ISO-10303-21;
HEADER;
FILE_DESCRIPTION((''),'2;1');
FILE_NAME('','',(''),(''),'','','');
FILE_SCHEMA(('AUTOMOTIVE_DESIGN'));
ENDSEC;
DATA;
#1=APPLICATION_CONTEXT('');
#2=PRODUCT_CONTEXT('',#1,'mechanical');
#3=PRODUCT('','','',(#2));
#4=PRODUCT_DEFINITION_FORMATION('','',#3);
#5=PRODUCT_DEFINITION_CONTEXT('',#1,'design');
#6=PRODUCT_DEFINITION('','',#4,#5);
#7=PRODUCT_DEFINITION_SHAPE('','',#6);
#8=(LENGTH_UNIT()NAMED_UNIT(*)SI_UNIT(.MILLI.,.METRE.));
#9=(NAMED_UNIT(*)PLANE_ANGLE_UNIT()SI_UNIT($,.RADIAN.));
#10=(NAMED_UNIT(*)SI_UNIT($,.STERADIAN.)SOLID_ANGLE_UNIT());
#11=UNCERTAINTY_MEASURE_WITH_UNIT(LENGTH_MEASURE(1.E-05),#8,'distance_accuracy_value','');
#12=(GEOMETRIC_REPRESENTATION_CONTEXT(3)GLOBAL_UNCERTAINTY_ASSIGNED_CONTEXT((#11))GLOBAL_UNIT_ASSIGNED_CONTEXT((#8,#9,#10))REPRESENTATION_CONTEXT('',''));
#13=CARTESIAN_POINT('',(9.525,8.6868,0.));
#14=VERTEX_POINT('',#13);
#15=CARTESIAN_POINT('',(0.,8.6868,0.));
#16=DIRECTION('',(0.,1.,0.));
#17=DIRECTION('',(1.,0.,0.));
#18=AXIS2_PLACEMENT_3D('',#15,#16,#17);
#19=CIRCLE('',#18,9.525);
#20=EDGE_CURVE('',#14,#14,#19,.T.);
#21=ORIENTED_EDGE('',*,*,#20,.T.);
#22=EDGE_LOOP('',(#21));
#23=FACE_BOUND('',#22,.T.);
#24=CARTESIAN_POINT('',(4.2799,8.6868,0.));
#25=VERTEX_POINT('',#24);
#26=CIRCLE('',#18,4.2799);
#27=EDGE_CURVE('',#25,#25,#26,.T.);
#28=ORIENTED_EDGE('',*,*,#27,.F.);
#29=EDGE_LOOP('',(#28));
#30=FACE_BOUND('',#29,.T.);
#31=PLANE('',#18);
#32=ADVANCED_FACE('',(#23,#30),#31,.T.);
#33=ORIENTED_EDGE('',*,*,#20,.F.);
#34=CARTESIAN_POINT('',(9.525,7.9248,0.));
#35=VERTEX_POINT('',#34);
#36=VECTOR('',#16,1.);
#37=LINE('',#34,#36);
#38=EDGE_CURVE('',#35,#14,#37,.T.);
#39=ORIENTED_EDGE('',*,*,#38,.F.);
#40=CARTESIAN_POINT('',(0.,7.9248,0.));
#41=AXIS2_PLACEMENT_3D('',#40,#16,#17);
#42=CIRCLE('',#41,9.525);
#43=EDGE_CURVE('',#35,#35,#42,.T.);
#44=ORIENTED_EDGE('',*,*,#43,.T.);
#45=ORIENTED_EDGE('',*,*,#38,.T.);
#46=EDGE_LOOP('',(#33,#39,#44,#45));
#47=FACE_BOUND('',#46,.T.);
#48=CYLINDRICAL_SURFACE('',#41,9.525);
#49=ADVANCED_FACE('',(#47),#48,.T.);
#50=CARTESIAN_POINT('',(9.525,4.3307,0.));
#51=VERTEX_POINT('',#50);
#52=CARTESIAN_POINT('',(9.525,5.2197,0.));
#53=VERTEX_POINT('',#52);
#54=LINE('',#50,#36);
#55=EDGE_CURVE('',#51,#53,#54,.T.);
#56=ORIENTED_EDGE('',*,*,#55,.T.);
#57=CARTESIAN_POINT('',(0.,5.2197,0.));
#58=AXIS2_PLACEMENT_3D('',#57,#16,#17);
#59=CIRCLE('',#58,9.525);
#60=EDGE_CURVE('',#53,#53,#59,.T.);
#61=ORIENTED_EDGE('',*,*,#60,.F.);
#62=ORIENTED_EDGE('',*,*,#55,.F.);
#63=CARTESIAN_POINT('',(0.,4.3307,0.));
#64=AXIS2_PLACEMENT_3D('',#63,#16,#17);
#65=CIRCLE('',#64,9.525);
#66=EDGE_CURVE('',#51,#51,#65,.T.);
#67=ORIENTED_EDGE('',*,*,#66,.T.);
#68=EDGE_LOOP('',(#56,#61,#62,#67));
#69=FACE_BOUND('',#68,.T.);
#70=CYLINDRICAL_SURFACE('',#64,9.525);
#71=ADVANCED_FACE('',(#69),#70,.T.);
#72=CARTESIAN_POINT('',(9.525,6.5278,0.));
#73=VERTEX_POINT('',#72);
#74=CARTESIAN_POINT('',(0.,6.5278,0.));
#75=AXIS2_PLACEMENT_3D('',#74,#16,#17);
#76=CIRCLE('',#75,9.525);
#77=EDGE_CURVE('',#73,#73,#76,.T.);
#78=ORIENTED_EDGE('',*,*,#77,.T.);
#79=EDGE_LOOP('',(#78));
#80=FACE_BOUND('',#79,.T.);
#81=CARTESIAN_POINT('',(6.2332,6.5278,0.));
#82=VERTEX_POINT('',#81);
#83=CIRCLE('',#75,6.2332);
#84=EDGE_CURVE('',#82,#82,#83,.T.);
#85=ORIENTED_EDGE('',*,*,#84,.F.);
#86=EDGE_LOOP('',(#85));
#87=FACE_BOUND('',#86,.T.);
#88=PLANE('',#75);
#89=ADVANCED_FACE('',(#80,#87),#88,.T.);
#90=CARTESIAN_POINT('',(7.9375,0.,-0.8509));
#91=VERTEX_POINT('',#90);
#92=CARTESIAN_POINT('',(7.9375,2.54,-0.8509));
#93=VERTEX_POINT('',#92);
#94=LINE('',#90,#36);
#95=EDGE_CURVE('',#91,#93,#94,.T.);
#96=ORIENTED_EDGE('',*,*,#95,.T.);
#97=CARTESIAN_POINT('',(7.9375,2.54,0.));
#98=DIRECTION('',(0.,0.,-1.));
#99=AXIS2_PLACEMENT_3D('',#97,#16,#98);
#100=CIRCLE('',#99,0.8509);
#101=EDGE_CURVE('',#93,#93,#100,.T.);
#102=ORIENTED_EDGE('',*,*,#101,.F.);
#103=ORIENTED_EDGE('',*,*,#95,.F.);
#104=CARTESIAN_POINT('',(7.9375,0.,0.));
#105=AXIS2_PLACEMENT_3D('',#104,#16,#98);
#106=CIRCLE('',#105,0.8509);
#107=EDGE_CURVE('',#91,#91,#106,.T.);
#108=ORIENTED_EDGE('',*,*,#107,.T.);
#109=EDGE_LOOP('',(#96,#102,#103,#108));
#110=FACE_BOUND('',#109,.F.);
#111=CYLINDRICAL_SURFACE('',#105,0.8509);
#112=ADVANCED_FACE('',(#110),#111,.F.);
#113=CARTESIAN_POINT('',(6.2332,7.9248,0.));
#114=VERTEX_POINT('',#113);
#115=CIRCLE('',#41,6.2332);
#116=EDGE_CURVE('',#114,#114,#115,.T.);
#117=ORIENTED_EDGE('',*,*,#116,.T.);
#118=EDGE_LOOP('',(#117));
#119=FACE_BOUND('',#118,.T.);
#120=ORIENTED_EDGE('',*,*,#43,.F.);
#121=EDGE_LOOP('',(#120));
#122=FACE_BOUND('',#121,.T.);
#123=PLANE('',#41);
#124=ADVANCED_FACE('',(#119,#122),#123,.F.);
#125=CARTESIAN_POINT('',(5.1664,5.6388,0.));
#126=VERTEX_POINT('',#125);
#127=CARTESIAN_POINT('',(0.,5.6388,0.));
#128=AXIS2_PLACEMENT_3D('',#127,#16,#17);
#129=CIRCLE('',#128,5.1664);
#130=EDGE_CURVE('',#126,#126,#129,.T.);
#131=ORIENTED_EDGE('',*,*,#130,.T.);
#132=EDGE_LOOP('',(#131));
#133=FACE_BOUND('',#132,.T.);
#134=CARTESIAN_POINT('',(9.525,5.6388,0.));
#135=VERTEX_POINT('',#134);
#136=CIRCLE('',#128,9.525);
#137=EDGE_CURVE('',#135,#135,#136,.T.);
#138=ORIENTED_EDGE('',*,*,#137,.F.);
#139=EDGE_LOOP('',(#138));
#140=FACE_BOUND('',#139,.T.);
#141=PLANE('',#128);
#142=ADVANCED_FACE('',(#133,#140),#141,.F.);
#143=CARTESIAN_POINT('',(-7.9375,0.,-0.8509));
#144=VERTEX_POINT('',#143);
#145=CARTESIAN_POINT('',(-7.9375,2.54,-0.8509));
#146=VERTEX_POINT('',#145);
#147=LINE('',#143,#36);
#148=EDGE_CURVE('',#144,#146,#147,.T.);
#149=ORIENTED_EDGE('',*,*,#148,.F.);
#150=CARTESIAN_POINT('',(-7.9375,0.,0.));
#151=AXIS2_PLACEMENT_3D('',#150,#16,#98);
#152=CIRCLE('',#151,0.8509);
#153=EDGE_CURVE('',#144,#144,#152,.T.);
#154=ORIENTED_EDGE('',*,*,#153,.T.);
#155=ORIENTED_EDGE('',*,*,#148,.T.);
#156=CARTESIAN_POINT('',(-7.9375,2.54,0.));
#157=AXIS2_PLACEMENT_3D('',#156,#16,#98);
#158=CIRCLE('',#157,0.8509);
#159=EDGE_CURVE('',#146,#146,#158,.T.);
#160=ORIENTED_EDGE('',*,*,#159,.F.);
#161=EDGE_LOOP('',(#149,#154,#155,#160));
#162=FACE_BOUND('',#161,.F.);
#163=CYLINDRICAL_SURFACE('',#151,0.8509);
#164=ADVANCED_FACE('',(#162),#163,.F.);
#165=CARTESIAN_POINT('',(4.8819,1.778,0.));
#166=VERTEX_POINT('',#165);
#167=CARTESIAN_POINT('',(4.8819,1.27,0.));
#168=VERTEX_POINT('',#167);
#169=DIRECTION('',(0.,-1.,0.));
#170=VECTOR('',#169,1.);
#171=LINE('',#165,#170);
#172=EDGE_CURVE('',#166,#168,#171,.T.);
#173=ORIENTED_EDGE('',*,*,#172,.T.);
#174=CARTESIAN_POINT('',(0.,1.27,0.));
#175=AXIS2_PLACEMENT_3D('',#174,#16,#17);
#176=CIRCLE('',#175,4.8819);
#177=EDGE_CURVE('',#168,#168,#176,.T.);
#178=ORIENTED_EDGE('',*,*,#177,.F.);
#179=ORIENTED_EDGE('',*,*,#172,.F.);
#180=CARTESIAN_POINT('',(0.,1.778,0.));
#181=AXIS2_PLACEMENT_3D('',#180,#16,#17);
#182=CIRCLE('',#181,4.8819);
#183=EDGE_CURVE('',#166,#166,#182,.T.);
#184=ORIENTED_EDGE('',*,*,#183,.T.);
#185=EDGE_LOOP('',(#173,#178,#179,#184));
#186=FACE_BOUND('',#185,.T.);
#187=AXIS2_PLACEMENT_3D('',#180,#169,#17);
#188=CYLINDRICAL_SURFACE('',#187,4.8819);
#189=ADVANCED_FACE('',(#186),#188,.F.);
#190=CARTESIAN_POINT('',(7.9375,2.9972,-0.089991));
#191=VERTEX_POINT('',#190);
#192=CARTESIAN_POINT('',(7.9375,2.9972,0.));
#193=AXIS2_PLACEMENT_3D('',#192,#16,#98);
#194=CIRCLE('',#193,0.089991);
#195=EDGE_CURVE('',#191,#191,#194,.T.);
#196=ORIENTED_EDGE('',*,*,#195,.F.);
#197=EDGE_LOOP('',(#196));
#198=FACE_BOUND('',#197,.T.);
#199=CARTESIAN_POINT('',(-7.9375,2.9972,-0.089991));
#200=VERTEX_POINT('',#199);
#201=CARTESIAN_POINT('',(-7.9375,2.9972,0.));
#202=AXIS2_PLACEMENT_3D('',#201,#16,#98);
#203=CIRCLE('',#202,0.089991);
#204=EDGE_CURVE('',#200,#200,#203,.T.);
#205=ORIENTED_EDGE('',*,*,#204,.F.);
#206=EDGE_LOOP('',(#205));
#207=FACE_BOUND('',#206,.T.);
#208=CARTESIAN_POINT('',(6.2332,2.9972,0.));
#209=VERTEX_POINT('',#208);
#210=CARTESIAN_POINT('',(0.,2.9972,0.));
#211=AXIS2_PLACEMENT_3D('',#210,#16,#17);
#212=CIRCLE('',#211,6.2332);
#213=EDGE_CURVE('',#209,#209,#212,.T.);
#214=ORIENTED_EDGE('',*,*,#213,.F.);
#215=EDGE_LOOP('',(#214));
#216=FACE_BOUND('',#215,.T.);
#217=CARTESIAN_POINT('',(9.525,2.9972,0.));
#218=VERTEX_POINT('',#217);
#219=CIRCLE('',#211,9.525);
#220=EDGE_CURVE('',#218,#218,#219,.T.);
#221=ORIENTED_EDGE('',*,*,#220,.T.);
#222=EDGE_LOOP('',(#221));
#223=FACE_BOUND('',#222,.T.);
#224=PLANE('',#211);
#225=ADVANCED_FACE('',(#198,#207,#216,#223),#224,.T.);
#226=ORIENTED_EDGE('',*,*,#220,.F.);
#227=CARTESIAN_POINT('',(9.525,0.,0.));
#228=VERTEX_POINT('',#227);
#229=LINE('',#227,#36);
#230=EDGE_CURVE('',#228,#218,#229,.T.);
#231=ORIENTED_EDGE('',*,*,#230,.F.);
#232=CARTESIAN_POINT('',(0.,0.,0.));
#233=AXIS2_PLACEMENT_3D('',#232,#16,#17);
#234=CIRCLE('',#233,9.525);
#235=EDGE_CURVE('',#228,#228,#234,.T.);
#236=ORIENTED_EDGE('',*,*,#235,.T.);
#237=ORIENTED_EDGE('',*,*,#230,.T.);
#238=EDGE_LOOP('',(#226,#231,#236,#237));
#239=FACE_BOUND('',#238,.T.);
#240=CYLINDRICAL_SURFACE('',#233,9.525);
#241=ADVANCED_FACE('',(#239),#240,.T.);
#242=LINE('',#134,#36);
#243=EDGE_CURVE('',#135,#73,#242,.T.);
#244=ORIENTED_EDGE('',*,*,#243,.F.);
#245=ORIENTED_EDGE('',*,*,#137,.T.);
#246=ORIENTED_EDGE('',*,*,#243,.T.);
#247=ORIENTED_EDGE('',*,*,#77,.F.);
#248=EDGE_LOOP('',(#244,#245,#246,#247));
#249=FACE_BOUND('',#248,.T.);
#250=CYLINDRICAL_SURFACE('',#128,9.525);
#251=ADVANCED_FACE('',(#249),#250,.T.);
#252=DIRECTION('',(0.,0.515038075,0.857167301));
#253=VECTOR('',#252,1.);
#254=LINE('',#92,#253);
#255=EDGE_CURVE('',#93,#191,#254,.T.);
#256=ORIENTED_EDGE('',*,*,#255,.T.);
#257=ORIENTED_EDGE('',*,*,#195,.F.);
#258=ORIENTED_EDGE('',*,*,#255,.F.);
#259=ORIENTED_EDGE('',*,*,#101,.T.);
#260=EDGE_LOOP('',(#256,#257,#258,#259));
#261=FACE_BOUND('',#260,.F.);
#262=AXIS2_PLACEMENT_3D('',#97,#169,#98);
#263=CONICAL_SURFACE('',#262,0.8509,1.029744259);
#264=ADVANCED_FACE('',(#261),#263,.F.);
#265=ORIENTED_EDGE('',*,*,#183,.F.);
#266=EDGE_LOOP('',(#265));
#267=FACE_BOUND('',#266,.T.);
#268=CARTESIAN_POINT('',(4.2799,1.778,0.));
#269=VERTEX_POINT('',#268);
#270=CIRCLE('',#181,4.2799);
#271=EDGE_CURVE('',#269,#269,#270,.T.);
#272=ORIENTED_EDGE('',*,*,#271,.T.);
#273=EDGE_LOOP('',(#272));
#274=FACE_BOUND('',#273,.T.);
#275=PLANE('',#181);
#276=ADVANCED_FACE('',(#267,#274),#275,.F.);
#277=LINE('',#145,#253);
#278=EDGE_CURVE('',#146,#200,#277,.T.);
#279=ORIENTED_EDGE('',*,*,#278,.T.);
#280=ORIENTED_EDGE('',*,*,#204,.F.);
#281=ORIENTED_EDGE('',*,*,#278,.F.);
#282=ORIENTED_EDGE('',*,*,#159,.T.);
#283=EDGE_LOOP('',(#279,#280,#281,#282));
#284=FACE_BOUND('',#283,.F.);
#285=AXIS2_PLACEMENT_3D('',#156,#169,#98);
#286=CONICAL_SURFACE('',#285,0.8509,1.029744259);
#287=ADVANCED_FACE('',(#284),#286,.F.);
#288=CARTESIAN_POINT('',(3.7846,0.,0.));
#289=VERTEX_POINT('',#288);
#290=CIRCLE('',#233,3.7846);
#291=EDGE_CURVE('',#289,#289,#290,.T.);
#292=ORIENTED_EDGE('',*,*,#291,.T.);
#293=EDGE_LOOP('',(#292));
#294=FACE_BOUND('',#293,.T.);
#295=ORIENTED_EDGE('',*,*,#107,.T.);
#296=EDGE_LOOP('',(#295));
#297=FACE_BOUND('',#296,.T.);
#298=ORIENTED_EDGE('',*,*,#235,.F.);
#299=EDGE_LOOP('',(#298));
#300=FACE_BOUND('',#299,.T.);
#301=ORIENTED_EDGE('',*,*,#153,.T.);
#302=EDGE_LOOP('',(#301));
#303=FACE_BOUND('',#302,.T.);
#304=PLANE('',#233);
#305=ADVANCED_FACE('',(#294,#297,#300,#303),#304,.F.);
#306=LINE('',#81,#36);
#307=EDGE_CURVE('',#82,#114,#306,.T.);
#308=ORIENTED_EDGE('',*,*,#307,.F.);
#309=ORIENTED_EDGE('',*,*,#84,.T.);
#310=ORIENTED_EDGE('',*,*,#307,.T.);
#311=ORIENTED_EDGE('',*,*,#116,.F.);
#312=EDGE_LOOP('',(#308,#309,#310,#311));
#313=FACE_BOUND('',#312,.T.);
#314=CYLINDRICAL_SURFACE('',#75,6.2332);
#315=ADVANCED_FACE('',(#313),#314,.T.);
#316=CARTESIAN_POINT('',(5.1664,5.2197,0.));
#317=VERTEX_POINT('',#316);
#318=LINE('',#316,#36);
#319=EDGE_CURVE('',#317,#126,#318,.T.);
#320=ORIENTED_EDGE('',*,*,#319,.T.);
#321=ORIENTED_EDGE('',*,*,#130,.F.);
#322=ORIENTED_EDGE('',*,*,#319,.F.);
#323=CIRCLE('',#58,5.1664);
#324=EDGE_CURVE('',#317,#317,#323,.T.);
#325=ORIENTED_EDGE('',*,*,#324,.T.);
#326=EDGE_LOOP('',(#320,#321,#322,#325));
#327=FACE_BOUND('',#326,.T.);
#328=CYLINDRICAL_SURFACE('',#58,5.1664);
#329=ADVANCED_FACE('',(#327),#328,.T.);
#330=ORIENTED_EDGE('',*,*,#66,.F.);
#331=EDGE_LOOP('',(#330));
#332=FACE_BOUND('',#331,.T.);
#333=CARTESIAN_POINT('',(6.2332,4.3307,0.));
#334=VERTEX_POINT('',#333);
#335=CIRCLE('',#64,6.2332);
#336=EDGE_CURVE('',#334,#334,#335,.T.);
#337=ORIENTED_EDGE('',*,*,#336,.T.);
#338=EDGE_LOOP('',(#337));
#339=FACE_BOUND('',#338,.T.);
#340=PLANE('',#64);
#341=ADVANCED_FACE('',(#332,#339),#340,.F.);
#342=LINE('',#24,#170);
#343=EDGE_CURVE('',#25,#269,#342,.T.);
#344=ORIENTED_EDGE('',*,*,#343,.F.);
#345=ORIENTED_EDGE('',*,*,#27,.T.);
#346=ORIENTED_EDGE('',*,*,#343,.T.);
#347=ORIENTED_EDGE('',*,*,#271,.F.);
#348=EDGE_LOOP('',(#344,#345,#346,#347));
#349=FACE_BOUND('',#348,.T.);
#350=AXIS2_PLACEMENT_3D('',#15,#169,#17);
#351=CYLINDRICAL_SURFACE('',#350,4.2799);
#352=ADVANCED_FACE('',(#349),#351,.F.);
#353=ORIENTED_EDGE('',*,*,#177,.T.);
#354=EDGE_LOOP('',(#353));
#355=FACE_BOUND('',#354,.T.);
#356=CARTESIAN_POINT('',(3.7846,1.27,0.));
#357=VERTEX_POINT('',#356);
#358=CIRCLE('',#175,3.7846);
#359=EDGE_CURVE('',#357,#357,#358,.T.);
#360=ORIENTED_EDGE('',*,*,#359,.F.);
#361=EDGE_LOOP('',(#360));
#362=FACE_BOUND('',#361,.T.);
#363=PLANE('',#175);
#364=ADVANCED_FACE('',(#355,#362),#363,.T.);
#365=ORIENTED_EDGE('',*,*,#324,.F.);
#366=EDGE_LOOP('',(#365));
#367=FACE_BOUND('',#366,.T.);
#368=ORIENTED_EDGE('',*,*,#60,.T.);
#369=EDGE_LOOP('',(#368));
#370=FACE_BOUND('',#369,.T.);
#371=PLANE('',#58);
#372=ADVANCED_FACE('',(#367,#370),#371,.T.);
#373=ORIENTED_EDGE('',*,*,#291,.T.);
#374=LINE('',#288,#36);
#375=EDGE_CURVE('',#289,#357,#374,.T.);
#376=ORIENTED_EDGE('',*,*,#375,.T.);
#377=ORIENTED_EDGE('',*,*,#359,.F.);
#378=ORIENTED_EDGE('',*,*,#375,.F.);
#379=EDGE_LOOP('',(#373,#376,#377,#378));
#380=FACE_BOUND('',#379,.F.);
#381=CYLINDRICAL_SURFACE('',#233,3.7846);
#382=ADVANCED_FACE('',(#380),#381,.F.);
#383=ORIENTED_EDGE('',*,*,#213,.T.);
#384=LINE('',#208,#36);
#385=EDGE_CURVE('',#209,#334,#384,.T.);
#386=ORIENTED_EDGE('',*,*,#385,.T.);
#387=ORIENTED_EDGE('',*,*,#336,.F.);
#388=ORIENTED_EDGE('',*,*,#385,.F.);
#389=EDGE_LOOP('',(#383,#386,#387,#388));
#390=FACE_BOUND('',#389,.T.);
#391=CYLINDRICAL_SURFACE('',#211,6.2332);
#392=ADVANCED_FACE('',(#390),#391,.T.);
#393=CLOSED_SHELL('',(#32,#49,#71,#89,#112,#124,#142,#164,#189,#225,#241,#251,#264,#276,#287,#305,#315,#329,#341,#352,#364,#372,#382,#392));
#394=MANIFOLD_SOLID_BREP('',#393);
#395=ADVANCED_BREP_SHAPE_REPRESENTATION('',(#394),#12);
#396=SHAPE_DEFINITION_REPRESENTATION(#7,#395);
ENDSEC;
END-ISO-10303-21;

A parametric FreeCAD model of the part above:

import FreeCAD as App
import Part
import Sketcher
from FreeCAD import Vector
Q = App.Units.Quantity

doc = App.newDocument("Part")
body = doc.addObject("PartDesign::Body", "Body")

sketch1 = body.newObject("Sketcher::SketchObject", "Sketch")
sketch1.AttachmentSupport = (doc.getObject("XY_Plane"), [""])
sketch1.MapMode = "FlatFace"
sketch1.addGeometry([
    Part.LineSegment(Vector(3.78, 1.27, 0), Vector(3.78, 0, 0)),
    Part.LineSegment(Vector(3.78, 0, 0), Vector(9.53, 0, 0)),
    Part.LineSegment(Vector(9.53, 0, 0), Vector(9.53, 3, 0)),
    Part.LineSegment(Vector(9.53, 3, 0), Vector(6.23, 3, 0)),
    Part.LineSegment(Vector(6.23, 3, 0), Vector(6.23, 4.33, 0)),
    Part.LineSegment(Vector(6.23, 4.33, 0), Vector(9.53, 4.33, 0)),
    Part.LineSegment(Vector(9.53, 4.33, 0), Vector(9.53, 5.22, 0)),
    Part.LineSegment(Vector(9.53, 5.22, 0), Vector(5.17, 5.22, 0)),
    Part.LineSegment(Vector(5.17, 5.22, 0), Vector(5.17, 5.64, 0)),
    Part.LineSegment(Vector(5.17, 5.64, 0), Vector(9.53, 5.64, 0)),
    Part.LineSegment(Vector(9.53, 5.64, 0), Vector(9.53, 6.53, 0)),
    Part.LineSegment(Vector(9.53, 6.53, 0), Vector(6.23, 6.53, 0)),
    Part.LineSegment(Vector(6.23, 6.53, 0), Vector(6.23, 7.92, 0)),
    Part.LineSegment(Vector(6.23, 7.92, 0), Vector(9.53, 7.92, 0)),
    Part.LineSegment(Vector(9.53, 7.92, 0), Vector(9.53, 8.69, 0)),
    Part.LineSegment(Vector(9.53, 8.69, 0), Vector(4.28, 8.69, 0)),
    Part.LineSegment(Vector(4.28, 8.69, 0), Vector(4.28, 1.78, 0)),
    Part.LineSegment(Vector(4.28, 1.78, 0), Vector(4.88, 1.78, 0)),
    Part.LineSegment(Vector(4.88, 1.78, 0), Vector(4.88, 1.27, 0)),
    Part.LineSegment(Vector(4.88, 1.27, 0), Vector(3.78, 1.27, 0)),
], False)
sketch1.addConstraint([
    Sketcher.Constraint("Coincident", 0, 2, 1, 1),
    Sketcher.Constraint("Coincident", 1, 2, 2, 1),
    Sketcher.Constraint("Coincident", 2, 2, 3, 1),
    Sketcher.Constraint("Coincident", 3, 2, 4, 1),
    Sketcher.Constraint("Coincident", 4, 2, 5, 1),
    Sketcher.Constraint("Coincident", 5, 2, 6, 1),
    Sketcher.Constraint("Coincident", 6, 2, 7, 1),
    Sketcher.Constraint("Coincident", 7, 2, 8, 1),
    Sketcher.Constraint("Coincident", 8, 2, 9, 1),
    Sketcher.Constraint("Coincident", 9, 2, 10, 1),
    Sketcher.Constraint("Coincident", 10, 2, 11, 1),
    Sketcher.Constraint("Coincident", 11, 2, 12, 1),
    Sketcher.Constraint("Coincident", 12, 2, 13, 1),
    Sketcher.Constraint("Coincident", 13, 2, 14, 1),
    Sketcher.Constraint("Coincident", 14, 2, 15, 1),
    Sketcher.Constraint("Coincident", 15, 2, 16, 1),
    Sketcher.Constraint("Coincident", 16, 2, 17, 1),
    Sketcher.Constraint("Coincident", 17, 2, 18, 1),
    Sketcher.Constraint("Coincident", 18, 2, 19, 1),
    Sketcher.Constraint("Coincident", 19, 2, 0, 1),
    Sketcher.Constraint("Vertical", 0),
    Sketcher.Constraint("Horizontal", 1),
    Sketcher.Constraint("Vertical", 2),
    Sketcher.Constraint("Horizontal", 3),
    Sketcher.Constraint("Vertical", 4),
    Sketcher.Constraint("Horizontal", 5),
    Sketcher.Constraint("Vertical", 6),
    Sketcher.Constraint("Horizontal", 7),
    Sketcher.Constraint("Vertical", 8),
    Sketcher.Constraint("Horizontal", 9),
    Sketcher.Constraint("Vertical", 10),
    Sketcher.Constraint("Horizontal", 11),
    Sketcher.Constraint("Vertical", 12),
    Sketcher.Constraint("Horizontal", 13),
    Sketcher.Constraint("Vertical", 14),
    Sketcher.Constraint("Horizontal", 15),
    Sketcher.Constraint("Vertical", 16),
    Sketcher.Constraint("Horizontal", 17),
    Sketcher.Constraint("Vertical", 18),
    Sketcher.Constraint("Horizontal", 19),
    Sketcher.Constraint("PointOnObject", 0, 2, -1),
    Sketcher.Constraint("Vertical", 2, 2, 5, 2),
    Sketcher.Constraint("Vertical", 6, 2, 9, 2),
    Sketcher.Constraint("Vertical", 4, 2, 11, 2),
    Sketcher.Constraint("Vertical", 10, 2, 13, 2),
    Sketcher.Constraint("Equal", 6, 10),
    Sketcher.Constraint("DistanceY", 0, 2, 0, 1, Q("0.05 in")),
    Sketcher.Constraint("DistanceY", 14, 1, 14, 2, Q("0.03 in")),
    Sketcher.Constraint("DistanceY", 18, 2, 18, 1, Q("0.02 in")),
    Sketcher.Constraint("DistanceY", 2, 1, 2, 2, Q("0.118 in")),
    Sketcher.Constraint("DistanceY", 6, 1, 6, 2, Q("0.035 in")),
    Sketcher.Constraint("DistanceY", 12, 1, 12, 2, Q("0.055 in")),
    Sketcher.Constraint("DistanceY", 4, 1, 4, 2, Q("0.0525 in")),
    Sketcher.Constraint("DistanceY", -1, 1, 14, 2, Q("0.342 in")),
    Sketcher.Constraint("DistanceX", 1, 1, 1, 2, Q("0.226 in")),
    Sketcher.Constraint("DistanceX", 3, 2, 3, 1, Q("0.1296 in")),
    Sketcher.Constraint("DistanceX", 7, 2, 7, 1, Q("0.1716 in")),
    Sketcher.Constraint("DistanceX", 15, 2, 15, 1, Q("0.2065 in")),
    Sketcher.Constraint("DistanceX", 17, 1, 17, 2, Q("0.0237 in")),
    Sketcher.Constraint("DistanceX", -1, 1, 0, 2, Q("0.149 in")),
])
revolution = body.newObject("PartDesign::Revolution", "Revolution")
revolution.Profile = sketch1
revolution.ReferenceAxis = (sketch1, ["V_Axis"])
revolution.Angle = 360

sketch2 = body.newObject("Sketcher::SketchObject", "Sketch001")
sketch2.AttachmentSupport = (doc.getObject("XZ_Plane"), [""])
sketch2.MapMode = "FlatFace"
sketch2.addGeometry([
    Part.Circle(Vector(7.9, 0, 0), Vector(0, 0, 1), 0.9),
    Part.Circle(Vector(-7.9, 0, 0), Vector(0, 0, 1), 0.9),
], False)
sketch2.addConstraint([
    Sketcher.Constraint("Equal", 0, 1),
    Sketcher.Constraint("Symmetric", 0, 3, 1, 3, -1, 1),
    Sketcher.Constraint("PointOnObject", 0, 3, -1),
    Sketcher.Constraint("Diameter", 0, Q("0.067 in")),
    Sketcher.Constraint("DistanceX", -1, 1, 0, 3, Q("0.3125 in")),
])
doc.recompute()
hole = body.newObject("PartDesign::Hole", "Hole")
hole.Profile = sketch2
hole.ThreadType = "None"
hole.Diameter = Q("0.067 in")
hole.DepthType = "Dimension"
hole.Depth = Q("0.1 in")
hole.DrillPoint = "Angled"
hole.DrillPointAngle = 118

doc.recompute()
